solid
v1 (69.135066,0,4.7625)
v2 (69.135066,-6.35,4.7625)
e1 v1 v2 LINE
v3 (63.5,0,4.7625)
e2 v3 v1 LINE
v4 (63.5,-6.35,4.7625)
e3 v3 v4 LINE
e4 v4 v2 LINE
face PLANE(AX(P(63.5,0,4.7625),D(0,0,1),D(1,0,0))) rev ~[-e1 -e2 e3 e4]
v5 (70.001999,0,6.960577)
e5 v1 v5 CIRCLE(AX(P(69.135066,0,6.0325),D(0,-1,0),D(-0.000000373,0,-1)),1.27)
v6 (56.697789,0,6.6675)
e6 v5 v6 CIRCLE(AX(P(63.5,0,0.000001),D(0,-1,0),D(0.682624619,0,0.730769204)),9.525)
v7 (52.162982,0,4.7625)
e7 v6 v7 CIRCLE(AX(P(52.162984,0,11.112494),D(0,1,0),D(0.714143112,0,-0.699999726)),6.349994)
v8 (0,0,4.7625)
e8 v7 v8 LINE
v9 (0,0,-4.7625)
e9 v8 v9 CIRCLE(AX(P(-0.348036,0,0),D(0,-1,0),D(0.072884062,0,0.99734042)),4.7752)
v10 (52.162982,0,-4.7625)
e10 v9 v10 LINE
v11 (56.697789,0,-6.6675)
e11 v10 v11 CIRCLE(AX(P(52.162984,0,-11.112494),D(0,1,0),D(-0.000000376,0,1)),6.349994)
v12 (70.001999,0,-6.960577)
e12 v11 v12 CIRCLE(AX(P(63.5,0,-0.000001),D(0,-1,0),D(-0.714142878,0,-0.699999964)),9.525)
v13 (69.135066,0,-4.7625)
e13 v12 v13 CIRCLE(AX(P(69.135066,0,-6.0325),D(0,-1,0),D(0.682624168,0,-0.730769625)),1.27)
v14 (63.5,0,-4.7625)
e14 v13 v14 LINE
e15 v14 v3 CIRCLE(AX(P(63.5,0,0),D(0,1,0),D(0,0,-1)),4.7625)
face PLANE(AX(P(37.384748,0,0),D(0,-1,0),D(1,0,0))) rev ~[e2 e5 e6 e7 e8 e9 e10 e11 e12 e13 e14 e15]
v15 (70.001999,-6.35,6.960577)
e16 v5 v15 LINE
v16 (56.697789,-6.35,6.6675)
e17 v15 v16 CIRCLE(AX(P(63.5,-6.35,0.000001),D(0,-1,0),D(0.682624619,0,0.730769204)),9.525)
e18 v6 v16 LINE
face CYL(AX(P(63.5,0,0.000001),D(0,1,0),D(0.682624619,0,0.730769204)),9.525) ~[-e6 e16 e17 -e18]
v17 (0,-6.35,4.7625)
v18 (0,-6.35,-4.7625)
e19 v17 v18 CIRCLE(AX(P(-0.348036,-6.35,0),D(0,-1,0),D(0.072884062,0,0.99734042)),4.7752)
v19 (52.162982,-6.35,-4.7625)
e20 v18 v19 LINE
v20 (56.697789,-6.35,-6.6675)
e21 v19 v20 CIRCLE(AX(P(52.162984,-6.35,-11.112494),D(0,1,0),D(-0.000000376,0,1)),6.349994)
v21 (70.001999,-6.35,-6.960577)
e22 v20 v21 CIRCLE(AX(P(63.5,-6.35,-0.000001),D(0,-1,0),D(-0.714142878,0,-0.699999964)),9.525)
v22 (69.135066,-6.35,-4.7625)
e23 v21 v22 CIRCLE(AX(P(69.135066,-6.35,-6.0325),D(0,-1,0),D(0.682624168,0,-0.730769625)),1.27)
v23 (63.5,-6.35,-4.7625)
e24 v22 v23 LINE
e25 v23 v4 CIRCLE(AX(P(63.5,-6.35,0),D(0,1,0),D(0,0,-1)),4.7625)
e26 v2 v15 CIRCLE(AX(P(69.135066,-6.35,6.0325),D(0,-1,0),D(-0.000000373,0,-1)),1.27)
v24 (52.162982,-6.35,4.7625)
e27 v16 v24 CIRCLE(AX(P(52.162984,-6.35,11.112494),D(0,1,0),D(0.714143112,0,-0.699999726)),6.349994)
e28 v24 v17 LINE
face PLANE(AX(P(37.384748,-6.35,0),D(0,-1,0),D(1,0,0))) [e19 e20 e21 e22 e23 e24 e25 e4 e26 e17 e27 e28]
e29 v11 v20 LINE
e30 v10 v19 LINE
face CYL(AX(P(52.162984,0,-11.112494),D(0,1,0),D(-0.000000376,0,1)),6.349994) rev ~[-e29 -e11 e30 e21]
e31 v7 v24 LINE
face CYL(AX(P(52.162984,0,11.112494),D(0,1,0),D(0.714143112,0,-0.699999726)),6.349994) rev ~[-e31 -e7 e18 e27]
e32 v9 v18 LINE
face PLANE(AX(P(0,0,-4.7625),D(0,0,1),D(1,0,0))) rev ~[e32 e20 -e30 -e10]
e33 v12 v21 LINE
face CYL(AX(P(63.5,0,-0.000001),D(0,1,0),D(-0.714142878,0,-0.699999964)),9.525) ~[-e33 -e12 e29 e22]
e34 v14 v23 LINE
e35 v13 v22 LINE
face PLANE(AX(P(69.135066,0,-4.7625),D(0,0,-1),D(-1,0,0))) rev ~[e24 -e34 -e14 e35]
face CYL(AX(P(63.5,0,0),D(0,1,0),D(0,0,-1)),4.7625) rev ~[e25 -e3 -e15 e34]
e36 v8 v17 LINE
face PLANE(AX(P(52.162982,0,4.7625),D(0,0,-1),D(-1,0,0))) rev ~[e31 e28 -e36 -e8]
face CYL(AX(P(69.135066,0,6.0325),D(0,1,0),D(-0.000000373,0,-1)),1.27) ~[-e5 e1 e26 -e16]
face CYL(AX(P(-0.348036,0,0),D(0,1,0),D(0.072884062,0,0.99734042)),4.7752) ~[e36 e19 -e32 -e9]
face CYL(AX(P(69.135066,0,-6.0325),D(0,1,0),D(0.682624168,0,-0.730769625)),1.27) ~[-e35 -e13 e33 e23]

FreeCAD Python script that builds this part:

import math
import FreeCAD as App
import Part
import Sketcher
from FreeCAD import Vector
Q = App.Units.Quantity

doc = App.newDocument("Part")
body = doc.addObject("PartDesign::Body", "Body")

# Sketch on XZ plane
sketch1 = body.newObject("Sketcher::SketchObject", "Sketch")
sketch1.AttachmentSupport = (doc.getObject("XZ_Plane"), [""])
sketch1.MapMode = "FlatFace"
sketch1.addGeometry([
    Part.LineSegment(Vector(52.2, 4.8, 0), Vector(0, 4.8, 0)),  # 0
    Part.ArcOfCircle(Part.Circle(Vector(-0.3, 0, 0), Vector(0, 0, 1), 4.8), math.radians(86), math.radians(274)),  # 1
    Part.LineSegment(Vector(0, -4.8, 0), Vector(52.2, -4.8, 0)),  # 2
    Part.ArcOfCircle(Part.Circle(Vector(52.2, -11.1, 0), Vector(0, 0, 1), 6.3), math.radians(44), math.radians(90)),  # 3
    Part.ArcOfCircle(Part.Circle(Vector(63.5, 0, 0), Vector(0, 0, 1), 9.5), math.radians(-136), math.radians(-47)),  # 4
    Part.ArcOfCircle(Part.Circle(Vector(69.1, -6, 0), Vector(0, 0, 1), 1.3), math.radians(-47), math.radians(90)),  # 5
    Part.LineSegment(Vector(69.1, -4.8, 0), Vector(63.5, -4.8, 0)),  # 6
    Part.ArcOfCircle(Part.Circle(Vector(63.5, 0, 0), Vector(0, 0, 1), 4.8), math.radians(90), math.radians(270)),  # 7
    Part.LineSegment(Vector(63.5, 4.8, 0), Vector(69.1, 4.8, 0)),  # 8
    Part.ArcOfCircle(Part.Circle(Vector(69.1, 6, 0), Vector(0, 0, 1), 1.3), math.radians(-90), math.radians(47)),  # 9
    Part.ArcOfCircle(Part.Circle(Vector(63.5, 0, 0), Vector(0, 0, 1), 9.5), math.radians(47), math.radians(136)),  # 10
    Part.ArcOfCircle(Part.Circle(Vector(52.2, 11.1, 0), Vector(0, 0, 1), 6.3), math.radians(-90), math.radians(-44)),  # 11
], False)
sketch1.addConstraint([
    Sketcher.Constraint("Coincident", 0, 2, 1, 1),
    Sketcher.Constraint("Coincident", 1, 2, 2, 1),
    Sketcher.Constraint("Tangent", 2, 2, 3, 2),
    Sketcher.Constraint("Tangent", 3, 1, 4, 1),
    Sketcher.Constraint("Tangent", 4, 2, 5, 1),
    Sketcher.Constraint("Tangent", 5, 2, 6, 1),
    Sketcher.Constraint("Tangent", 6, 2, 7, 2),
    Sketcher.Constraint("Tangent", 7, 1, 8, 1),
    Sketcher.Constraint("Tangent", 8, 2, 9, 1),
    Sketcher.Constraint("Tangent", 9, 2, 10, 1),
    Sketcher.Constraint("Tangent", 10, 2, 11, 2),
    Sketcher.Constraint("Tangent", 11, 1, 0, 1),
    Sketcher.Constraint("Horizontal", 0),
    Sketcher.Constraint("Horizontal", 2),
    Sketcher.Constraint("Horizontal", 6),
    Sketcher.Constraint("Horizontal", 8),
    Sketcher.Constraint("Coincident", 7, 3, 4, 3),
    Sketcher.Constraint("Coincident", 10, 3, 4, 3),
    Sketcher.Constraint("Equal", 5, 9),
    Sketcher.Constraint("Equal", 4, 10),
    Sketcher.Constraint("Equal", 3, 11),
    Sketcher.Constraint("Symmetric", 0, 2, 1, 2, -1, 1),
    Sketcher.Constraint("PointOnObject", 1, 3, -1),
    Sketcher.Constraint("PointOnObject", 4, 3, -1),
    Sketcher.Constraint("Horizontal", 2, 2, 5, 2),
    Sketcher.Constraint("Radius", 5, Q("0.05 in")),
    Sketcher.Constraint("Radius", 1, Q("0.188 in")),
    Sketcher.Constraint("Radius", 4, Q("0.375 in")),
    Sketcher.Constraint("Radius", 7, Q("0.1875 in")),
    Sketcher.Constraint("DistanceX", -1, 1, 4, 3, Q("2.5 in")),
    Sketcher.Constraint("DistanceY", 3, 1, 2, 2, Q("0.075 in")),
])
pad1 = body.newObject("PartDesign::Pad", "Pad")
pad1.Profile = sketch1
pad1.Length = Q("0.25 in")

doc.recompute()
